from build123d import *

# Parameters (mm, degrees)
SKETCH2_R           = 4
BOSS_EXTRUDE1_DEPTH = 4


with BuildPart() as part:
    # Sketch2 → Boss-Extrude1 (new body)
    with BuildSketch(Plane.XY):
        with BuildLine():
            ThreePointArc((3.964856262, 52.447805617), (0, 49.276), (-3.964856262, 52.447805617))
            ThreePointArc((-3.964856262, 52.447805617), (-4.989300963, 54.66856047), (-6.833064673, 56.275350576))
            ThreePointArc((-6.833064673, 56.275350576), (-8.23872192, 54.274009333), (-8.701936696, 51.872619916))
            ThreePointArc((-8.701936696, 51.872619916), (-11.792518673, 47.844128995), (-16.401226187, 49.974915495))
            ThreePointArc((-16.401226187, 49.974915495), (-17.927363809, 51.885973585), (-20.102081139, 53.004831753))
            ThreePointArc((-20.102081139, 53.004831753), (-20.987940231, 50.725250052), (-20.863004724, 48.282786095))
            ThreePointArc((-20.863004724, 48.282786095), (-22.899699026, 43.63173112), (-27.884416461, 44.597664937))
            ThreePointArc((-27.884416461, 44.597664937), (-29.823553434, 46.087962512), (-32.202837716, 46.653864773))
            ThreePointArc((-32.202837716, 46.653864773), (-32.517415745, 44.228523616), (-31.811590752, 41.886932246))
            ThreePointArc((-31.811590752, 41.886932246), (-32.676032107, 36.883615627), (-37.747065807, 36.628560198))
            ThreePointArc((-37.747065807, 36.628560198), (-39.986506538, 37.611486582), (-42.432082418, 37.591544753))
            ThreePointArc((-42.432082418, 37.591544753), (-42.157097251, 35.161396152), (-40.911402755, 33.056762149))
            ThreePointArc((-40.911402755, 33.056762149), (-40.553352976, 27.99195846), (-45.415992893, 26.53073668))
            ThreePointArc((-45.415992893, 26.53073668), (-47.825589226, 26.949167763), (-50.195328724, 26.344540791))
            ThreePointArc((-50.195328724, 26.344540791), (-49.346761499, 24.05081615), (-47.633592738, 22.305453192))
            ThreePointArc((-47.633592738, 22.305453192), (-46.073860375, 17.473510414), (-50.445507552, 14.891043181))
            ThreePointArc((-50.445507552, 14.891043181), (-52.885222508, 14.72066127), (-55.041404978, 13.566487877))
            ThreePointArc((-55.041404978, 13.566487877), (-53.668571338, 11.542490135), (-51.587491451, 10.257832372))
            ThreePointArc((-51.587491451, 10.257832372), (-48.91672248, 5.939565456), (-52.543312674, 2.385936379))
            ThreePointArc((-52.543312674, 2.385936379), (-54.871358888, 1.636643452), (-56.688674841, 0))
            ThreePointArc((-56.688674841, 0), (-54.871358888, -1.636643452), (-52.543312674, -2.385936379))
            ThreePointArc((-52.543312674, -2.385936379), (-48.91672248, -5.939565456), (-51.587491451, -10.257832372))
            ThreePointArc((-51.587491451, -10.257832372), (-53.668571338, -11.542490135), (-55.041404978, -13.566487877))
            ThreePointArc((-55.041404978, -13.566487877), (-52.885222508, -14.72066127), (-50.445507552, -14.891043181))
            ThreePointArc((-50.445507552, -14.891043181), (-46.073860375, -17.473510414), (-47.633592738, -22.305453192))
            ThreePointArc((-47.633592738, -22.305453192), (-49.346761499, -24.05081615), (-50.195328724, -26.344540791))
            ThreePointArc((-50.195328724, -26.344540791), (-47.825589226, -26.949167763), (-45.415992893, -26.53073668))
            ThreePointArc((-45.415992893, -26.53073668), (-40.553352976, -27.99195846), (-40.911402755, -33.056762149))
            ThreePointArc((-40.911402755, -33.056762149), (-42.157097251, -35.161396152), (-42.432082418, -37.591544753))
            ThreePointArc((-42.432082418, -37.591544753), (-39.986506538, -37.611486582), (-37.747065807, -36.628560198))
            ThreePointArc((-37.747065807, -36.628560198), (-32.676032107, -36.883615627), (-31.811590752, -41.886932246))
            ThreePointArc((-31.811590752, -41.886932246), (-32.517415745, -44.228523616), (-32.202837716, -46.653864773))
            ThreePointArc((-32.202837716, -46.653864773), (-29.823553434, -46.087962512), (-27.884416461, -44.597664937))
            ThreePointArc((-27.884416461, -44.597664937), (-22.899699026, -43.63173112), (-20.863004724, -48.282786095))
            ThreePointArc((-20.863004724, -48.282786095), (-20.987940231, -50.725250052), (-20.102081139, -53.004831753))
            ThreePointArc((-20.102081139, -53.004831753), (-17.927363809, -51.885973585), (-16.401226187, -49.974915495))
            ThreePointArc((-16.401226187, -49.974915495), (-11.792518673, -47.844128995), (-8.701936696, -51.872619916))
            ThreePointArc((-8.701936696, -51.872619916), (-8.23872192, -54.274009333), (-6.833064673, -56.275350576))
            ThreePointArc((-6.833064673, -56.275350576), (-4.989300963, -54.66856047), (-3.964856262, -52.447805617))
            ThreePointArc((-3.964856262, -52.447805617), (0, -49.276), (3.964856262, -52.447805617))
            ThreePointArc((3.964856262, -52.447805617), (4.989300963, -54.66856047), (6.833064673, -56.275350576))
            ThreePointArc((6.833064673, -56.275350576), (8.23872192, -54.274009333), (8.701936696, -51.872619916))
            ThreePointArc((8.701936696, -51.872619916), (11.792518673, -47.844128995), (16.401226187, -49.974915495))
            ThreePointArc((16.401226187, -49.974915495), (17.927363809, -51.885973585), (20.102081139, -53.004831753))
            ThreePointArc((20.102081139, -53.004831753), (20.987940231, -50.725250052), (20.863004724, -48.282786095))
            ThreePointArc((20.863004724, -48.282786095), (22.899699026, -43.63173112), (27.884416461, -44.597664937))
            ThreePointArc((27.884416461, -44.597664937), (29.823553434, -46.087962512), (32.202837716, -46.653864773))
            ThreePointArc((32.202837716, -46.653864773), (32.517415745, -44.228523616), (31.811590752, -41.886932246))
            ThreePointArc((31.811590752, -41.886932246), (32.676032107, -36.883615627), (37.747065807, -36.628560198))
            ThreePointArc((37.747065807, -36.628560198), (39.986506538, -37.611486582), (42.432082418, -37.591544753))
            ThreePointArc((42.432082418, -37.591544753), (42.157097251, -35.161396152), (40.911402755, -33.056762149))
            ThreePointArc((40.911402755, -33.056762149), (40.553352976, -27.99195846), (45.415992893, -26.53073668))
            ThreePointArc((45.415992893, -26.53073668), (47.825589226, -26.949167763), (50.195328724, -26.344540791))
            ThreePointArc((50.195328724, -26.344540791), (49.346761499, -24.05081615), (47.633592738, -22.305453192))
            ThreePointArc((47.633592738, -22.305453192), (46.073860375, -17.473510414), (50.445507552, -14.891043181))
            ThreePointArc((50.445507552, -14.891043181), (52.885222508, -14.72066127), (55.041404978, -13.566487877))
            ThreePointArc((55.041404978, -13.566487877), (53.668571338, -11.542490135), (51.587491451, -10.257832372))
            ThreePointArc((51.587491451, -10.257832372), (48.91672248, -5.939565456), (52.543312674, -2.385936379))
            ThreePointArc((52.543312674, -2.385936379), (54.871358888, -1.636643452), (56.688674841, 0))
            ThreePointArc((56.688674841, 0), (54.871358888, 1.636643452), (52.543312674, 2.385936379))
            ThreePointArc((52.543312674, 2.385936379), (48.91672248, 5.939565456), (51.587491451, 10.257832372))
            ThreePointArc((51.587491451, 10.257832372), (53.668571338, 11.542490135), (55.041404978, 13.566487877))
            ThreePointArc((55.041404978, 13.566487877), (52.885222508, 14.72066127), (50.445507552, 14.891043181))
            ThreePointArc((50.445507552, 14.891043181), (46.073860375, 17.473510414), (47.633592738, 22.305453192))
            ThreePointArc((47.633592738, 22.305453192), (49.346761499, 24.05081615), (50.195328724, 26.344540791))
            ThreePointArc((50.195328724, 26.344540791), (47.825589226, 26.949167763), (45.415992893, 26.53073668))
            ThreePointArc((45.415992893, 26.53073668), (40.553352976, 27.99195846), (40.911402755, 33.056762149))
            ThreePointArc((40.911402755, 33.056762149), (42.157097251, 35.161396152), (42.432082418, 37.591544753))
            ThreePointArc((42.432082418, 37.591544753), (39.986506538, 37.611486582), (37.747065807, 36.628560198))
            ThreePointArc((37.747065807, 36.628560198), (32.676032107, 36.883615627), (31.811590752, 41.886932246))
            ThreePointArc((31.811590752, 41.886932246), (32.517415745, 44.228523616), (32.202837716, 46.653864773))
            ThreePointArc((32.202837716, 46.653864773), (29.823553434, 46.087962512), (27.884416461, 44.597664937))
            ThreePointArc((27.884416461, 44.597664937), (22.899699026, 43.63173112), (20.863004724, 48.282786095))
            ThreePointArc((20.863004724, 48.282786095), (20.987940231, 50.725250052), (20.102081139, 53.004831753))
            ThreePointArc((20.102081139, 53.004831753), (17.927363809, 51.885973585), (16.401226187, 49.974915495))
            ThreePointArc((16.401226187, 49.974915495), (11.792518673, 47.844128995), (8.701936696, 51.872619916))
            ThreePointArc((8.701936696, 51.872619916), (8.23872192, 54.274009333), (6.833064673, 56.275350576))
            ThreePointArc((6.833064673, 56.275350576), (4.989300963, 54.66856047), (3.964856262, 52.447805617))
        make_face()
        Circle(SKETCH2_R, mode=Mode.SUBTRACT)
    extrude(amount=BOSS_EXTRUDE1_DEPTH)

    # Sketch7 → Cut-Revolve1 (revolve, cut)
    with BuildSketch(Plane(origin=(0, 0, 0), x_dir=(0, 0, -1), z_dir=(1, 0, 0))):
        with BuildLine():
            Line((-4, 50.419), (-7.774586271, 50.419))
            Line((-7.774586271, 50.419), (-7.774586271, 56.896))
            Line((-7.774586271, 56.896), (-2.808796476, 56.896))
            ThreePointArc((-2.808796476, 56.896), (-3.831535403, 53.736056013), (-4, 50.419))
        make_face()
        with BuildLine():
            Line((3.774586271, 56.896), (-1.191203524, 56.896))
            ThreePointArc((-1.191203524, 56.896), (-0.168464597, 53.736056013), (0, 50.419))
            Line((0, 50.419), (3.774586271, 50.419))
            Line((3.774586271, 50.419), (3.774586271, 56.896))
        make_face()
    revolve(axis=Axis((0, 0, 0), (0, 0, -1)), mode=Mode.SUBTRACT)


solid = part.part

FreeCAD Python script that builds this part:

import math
import FreeCAD as App
import Part
import Sketcher
Q = App.Units.Quantity

doc = App.newDocument("Part")
body = doc.addObject("PartDesign::Body", "Body")

sketch1 = doc.addObject("Sketcher::SketchObject", "Sketch")
body.addObject(sketch1)
sketch1.AttachmentSupport = (doc.XY_Plane, [""])
sketch1.MapMode = "FlatFace"
sketch1.addGeometry([
    Part.ArcOfCircle(Part.Circle(App.Vector(0, 53.34, 0), App.Vector(0, 0, 1), 4.064), math.radians(-167.318217), math.radians(-12.681783)),
    Part.ArcOfCircle(Part.Circle(App.Vector(-9.664337, 51.165276, 0), App.Vector(0, 0, 1), 5.842), math.radians(12.681783), math.radians(61.011048)),
    Part.ArcOfCircle(Part.Circle(App.Vector(-2.861143, 51.991334, 0), App.Vector(0, 0, 1), 5.842), math.radians(132.835105), math.radians(181.164371)),
    Part.ArcOfCircle(Part.Circle(App.Vector(-12.765098, 51.790037, 0), App.Vector(0, 0, 1), 4.064), math.radians(-153.472063), math.radians(1.164371)),
    Part.ArcOfCircle(Part.Circle(App.Vector(-21.628161, 47.365679, 0), App.Vector(0, 0, 1), 5.842), math.radians(26.527936), math.radians(74.857202)),
    Part.ArcOfCircle(Part.Circle(App.Vector(-15.220344, 49.795844, 0), App.Vector(0, 0, 1), 5.842), math.radians(146.681259), math.radians(195.010525)),
    Part.ArcOfCircle(Part.Circle(App.Vector(-24.788334, 47.230224, 0), App.Vector(0, 0, 1), 4.064), math.radians(-139.62591), math.radians(15.010525)),
    Part.ArcOfCircle(Part.Circle(App.Vector(-32.335035, 40.813361, 0), App.Vector(0, 0, 1), 5.842), math.radians(40.37409), math.radians(88.703356)),
    Part.ArcOfCircle(Part.Circle(App.Vector(-26.694994, 44.7064, 0), App.Vector(0, 0, 1), 5.842), math.radians(160.527413), math.radians(208.856679)),
    Part.ArcOfCircle(Part.Circle(App.Vector(-35.370963, 39.925563, 0), App.Vector(0, 0, 1), 4.064), math.radians(-125.779756), math.radians(28.856679)),
    Part.ArcOfCircle(Part.Circle(App.Vector(-41.162714, 31.889118, 0), App.Vector(0, 0, 1), 5.842), math.radians(54.220244), math.radians(102.54951)),
    Part.ArcOfCircle(Part.Circle(App.Vector(-36.618228, 37.018783, 0), App.Vector(0, 0, 1), 5.842), math.radians(174.373567), math.radians(222.702833)),
    Part.ArcOfCircle(Part.Circle(App.Vector(-43.897959, 30.300574, 0), App.Vector(0, 0, 1), 4.064), math.radians(-111.933602), math.radians(42.702833)),
    Part.ArcOfCircle(Part.Circle(App.Vector(-47.598166, 21.111596, 0), App.Vector(0, 0, 1), 5.842), math.radians(68.066398), math.radians(116.395664)),
    Part.ArcOfCircle(Part.Circle(App.Vector(-44.413343, 27.179769, 0), App.Vector(0, 0, 1), 5.842), math.radians(-171.780279), math.radians(-123.451013)),
    Part.ArcOfCircle(Part.Circle(App.Vector(-49.873766, 18.914625, 0), App.Vector(0, 0, 1), 4.064), math.radians(-98.087448), math.radians(56.548987)),
    Part.ArcOfCircle(Part.Circle(App.Vector(-51.267385, 9.107145, 0), App.Vector(0, 0, 1), 5.842), math.radians(81.912552), math.radians(130.241818)),
    Part.ArcOfCircle(Part.Circle(App.Vector(-49.627317, 15.761166, 0), App.Vector(0, 0, 1), 5.842), math.radians(-157.934125), math.radians(-109.60486)),
    Part.ArcOfCircle(Part.Circle(App.Vector(-52.951091, 6.429427, 0), App.Vector(0, 0, 1), 4.064), math.radians(-84.241294), math.radians(70.39514)),
    Part.ArcOfCircle(Part.Circle(App.Vector(-51.957131, -3.426581, 0), App.Vector(0, 0, 1), 5.842), math.radians(95.758706), math.radians(144.087972)),
    Part.ArcOfCircle(Part.Circle(App.Vector(-51.957131, 3.426581, 0), App.Vector(0, 0, 1), 5.842), math.radians(-144.087972), math.radians(-95.758706)),
    Part.ArcOfCircle(Part.Circle(App.Vector(-52.951091, -6.429427, 0), App.Vector(0, 0, 1), 4.064), math.radians(-70.39514), math.radians(84.241294)),
    Part.ArcOfCircle(Part.Circle(App.Vector(-49.627317, -15.761166, 0), App.Vector(0, 0, 1), 5.842), math.radians(109.60486), math.radians(157.934125)),
    Part.ArcOfCircle(Part.Circle(App.Vector(-51.267385, -9.107145, 0), App.Vector(0, 0, 1), 5.842), math.radians(-130.241818), math.radians(-81.912552)),
    Part.ArcOfCircle(Part.Circle(App.Vector(-49.873766, -18.914625, 0), App.Vector(0, 0, 1), 4.064), math.radians(-56.548987), math.radians(98.087448)),
    Part.ArcOfCircle(Part.Circle(App.Vector(-44.413343, -27.179769, 0), App.Vector(0, 0, 1), 5.842), math.radians(123.451013), math.radians(171.780279)),
    Part.ArcOfCircle(Part.Circle(App.Vector(-47.598166, -21.111596, 0), App.Vector(0, 0, 1), 5.842), math.radians(-116.395664), math.radians(-68.066398)),
    Part.ArcOfCircle(Part.Circle(App.Vector(-43.897959, -30.300574, 0), App.Vector(0, 0, 1), 4.064), math.radians(-42.702833), math.radians(111.933602)),
    Part.ArcOfCircle(Part.Circle(App.Vector(-36.618228, -37.018783, 0), App.Vector(0, 0, 1), 5.842), math.radians(137.297167), math.radians(185.626433)),
    Part.ArcOfCircle(Part.Circle(App.Vector(-41.162714, -31.889118, 0), App.Vector(0, 0, 1), 5.842), math.radians(-102.54951), math.radians(-54.220244)),
    Part.ArcOfCircle(Part.Circle(App.Vector(-35.370963, -39.925563, 0), App.Vector(0, 0, 1), 4.064), math.radians(-28.856679), math.radians(125.779756)),
    Part.ArcOfCircle(Part.Circle(App.Vector(-26.694994, -44.7064, 0), App.Vector(0, 0, 1), 5.842), math.radians(151.143321), math.radians(199.472587)),
    Part.ArcOfCircle(Part.Circle(App.Vector(-32.335035, -40.813361, 0), App.Vector(0, 0, 1), 5.842), math.radians(-88.703356), math.radians(-40.37409)),
    Part.ArcOfCircle(Part.Circle(App.Vector(-24.788334, -47.230224, 0), App.Vector(0, 0, 1), 4.064), math.radians(-15.010525), math.radians(139.62591)),
    Part.ArcOfCircle(Part.Circle(App.Vector(-15.220344, -49.795844, 0), App.Vector(0, 0, 1), 5.842), math.radians(164.989475), math.radians(213.318741)),
    Part.ArcOfCircle(Part.Circle(App.Vector(-21.628161, -47.365679, 0), App.Vector(0, 0, 1), 5.842), math.radians(-74.857202), math.radians(-26.527936)),
    Part.ArcOfCircle(Part.Circle(App.Vector(-12.765098, -51.790037, 0), App.Vector(0, 0, 1), 4.064), math.radians(-1.164371), math.radians(153.472063)),
    Part.ArcOfCircle(Part.Circle(App.Vector(-2.861143, -51.991334, 0), App.Vector(0, 0, 1), 5.842), math.radians(178.835629), math.radians(227.164895)),
    Part.ArcOfCircle(Part.Circle(App.Vector(-9.664337, -51.165276, 0), App.Vector(0, 0, 1), 5.842), math.radians(-61.011048), math.radians(-12.681783)),
    Part.ArcOfCircle(Part.Circle(App.Vector(0, -53.34, 0), App.Vector(0, 0, 1), 4.064), math.radians(12.681783), math.radians(167.318217)),
    Part.ArcOfCircle(Part.Circle(App.Vector(9.664337, -51.165276, 0), App.Vector(0, 0, 1), 5.842), math.radians(-167.318217), math.radians(-118.988952)),
    Part.ArcOfCircle(Part.Circle(App.Vector(2.861143, -51.991334, 0), App.Vector(0, 0, 1), 5.842), math.radians(-47.164895), math.radians(1.164371)),
    Part.ArcOfCircle(Part.Circle(App.Vector(12.765098, -51.790037, 0), App.Vector(0, 0, 1), 4.064), math.radians(26.527937), math.radians(181.164371)),
    Part.ArcOfCircle(Part.Circle(App.Vector(21.628161, -47.365679, 0), App.Vector(0, 0, 1), 5.842), math.radians(-153.472064), math.radians(-105.142798)),
    Part.ArcOfCircle(Part.Circle(App.Vector(15.220344, -49.795844, 0), App.Vector(0, 0, 1), 5.842), math.radians(-33.318741), math.radians(15.010525)),
    Part.ArcOfCircle(Part.Circle(App.Vector(24.788334, -47.230224, 0), App.Vector(0, 0, 1), 4.064), math.radians(40.37409), math.radians(195.010525)),
    Part.ArcOfCircle(Part.Circle(App.Vector(32.335035, -40.813361, 0), App.Vector(0, 0, 1), 5.842), math.radians(-139.62591), math.radians(-91.296644)),
    Part.ArcOfCircle(Part.Circle(App.Vector(26.694994, -44.7064, 0), App.Vector(0, 0, 1), 5.842), math.radians(-19.472587), math.radians(28.856679)),
    Part.ArcOfCircle(Part.Circle(App.Vector(35.370963, -39.925563, 0), App.Vector(0, 0, 1), 4.064), math.radians(54.220244), math.radians(208.856679)),
    Part.ArcOfCircle(Part.Circle(App.Vector(41.162714, -31.889118, 0), App.Vector(0, 0, 1), 5.842), math.radians(-125.779756), math.radians(-77.45049)),
    Part.ArcOfCircle(Part.Circle(App.Vector(36.618228, -37.018783, 0), App.Vector(0, 0, 1), 5.842), math.radians(-5.626433), math.radians(42.702833)),
    Part.ArcOfCircle(Part.Circle(App.Vector(43.897959, -30.300574, 0), App.Vector(0, 0, 1), 4.064), math.radians(68.066398), math.radians(222.702833)),
    Part.ArcOfCircle(Part.Circle(App.Vector(47.598166, -21.111596, 0), App.Vector(0, 0, 1), 5.842), math.radians(-111.933602), math.radians(-63.604336)),
    Part.ArcOfCircle(Part.Circle(App.Vector(44.413343, -27.179769, 0), App.Vector(0, 0, 1), 5.842), math.radians(8.219721), math.radians(56.548987)),
    Part.ArcOfCircle(Part.Circle(App.Vector(49.873766, -18.914625, 0), App.Vector(0, 0, 1), 4.064), math.radians(81.912552), math.radians(236.548987)),
    Part.ArcOfCircle(Part.Circle(App.Vector(51.267385, -9.107145, 0), App.Vector(0, 0, 1), 5.842), math.radians(-98.087448), math.radians(-49.758182)),
    Part.ArcOfCircle(Part.Circle(App.Vector(49.627317, -15.761166, 0), App.Vector(0, 0, 1), 5.842), math.radians(22.065875), math.radians(70.39514)),
    Part.ArcOfCircle(Part.Circle(App.Vector(52.951091, -6.429427, 0), App.Vector(0, 0, 1), 4.064), math.radians(95.758706), math.radians(250.39514)),
    Part.ArcOfCircle(Part.Circle(App.Vector(51.957131, 3.426581, 0), App.Vector(0, 0, 1), 5.842), math.radians(-84.241294), math.radians(-35.912028)),
    Part.ArcOfCircle(Part.Circle(App.Vector(51.957131, -3.426581, 0), App.Vector(0, 0, 1), 5.842), math.radians(35.912028), math.radians(84.241294)),
    Part.ArcOfCircle(Part.Circle(App.Vector(52.951091, 6.429427, 0), App.Vector(0, 0, 1), 4.064), math.radians(109.60486), math.radians(264.241294)),
    Part.ArcOfCircle(Part.Circle(App.Vector(49.627317, 15.761166, 0), App.Vector(0, 0, 1), 5.842), math.radians(-70.39514), math.radians(-22.065875)),
    Part.ArcOfCircle(Part.Circle(App.Vector(51.267385, 9.107145, 0), App.Vector(0, 0, 1), 5.842), math.radians(49.758182), math.radians(98.087448)),
    Part.ArcOfCircle(Part.Circle(App.Vector(49.873766, 18.914625, 0), App.Vector(0, 0, 1), 4.064), math.radians(123.451013), math.radians(278.087448)),
    Part.ArcOfCircle(Part.Circle(App.Vector(44.413343, 27.179769, 0), App.Vector(0, 0, 1), 5.842), math.radians(-56.548987), math.radians(-8.219721)),
    Part.ArcOfCircle(Part.Circle(App.Vector(47.598166, 21.111596, 0), App.Vector(0, 0, 1), 5.842), math.radians(63.604336), math.radians(111.933602)),
    Part.ArcOfCircle(Part.Circle(App.Vector(43.897959, 30.300574, 0), App.Vector(0, 0, 1), 4.064), math.radians(137.297167), math.radians(291.933602)),
    Part.ArcOfCircle(Part.Circle(App.Vector(36.618228, 37.018783, 0), App.Vector(0, 0, 1), 5.842), math.radians(-42.702833), math.radians(5.626433)),
    Part.ArcOfCircle(Part.Circle(App.Vector(41.162714, 31.889118, 0), App.Vector(0, 0, 1), 5.842), math.radians(77.45049), math.radians(125.779756)),
    Part.ArcOfCircle(Part.Circle(App.Vector(35.370963, 39.925563, 0), App.Vector(0, 0, 1), 4.064), math.radians(151.143321), math.radians(305.779756)),
    Part.ArcOfCircle(Part.Circle(App.Vector(26.694994, 44.7064, 0), App.Vector(0, 0, 1), 5.842), math.radians(-28.856679), math.radians(19.472587)),
    Part.ArcOfCircle(Part.Circle(App.Vector(32.335035, 40.813361, 0), App.Vector(0, 0, 1), 5.842), math.radians(91.296644), math.radians(139.62591)),
    Part.ArcOfCircle(Part.Circle(App.Vector(24.788334, 47.230224, 0), App.Vector(0, 0, 1), 4.064), math.radians(164.989475), math.radians(319.62591)),
    Part.ArcOfCircle(Part.Circle(App.Vector(15.220344, 49.795844, 0), App.Vector(0, 0, 1), 5.842), math.radians(-15.010525), math.radians(33.318741)),
    Part.ArcOfCircle(Part.Circle(App.Vector(21.628161, 47.365679, 0), App.Vector(0, 0, 1), 5.842), math.radians(105.142798), math.radians(153.472064)),
    Part.ArcOfCircle(Part.Circle(App.Vector(12.765098, 51.790037, 0), App.Vector(0, 0, 1), 4.064), math.radians(178.835629), math.radians(333.472063)),
    Part.ArcOfCircle(Part.Circle(App.Vector(2.861143, 51.991334, 0), App.Vector(0, 0, 1), 5.842), math.radians(-1.164371), math.radians(47.164895)),
    Part.ArcOfCircle(Part.Circle(App.Vector(9.664337, 51.165276, 0), App.Vector(0, 0, 1), 5.842), math.radians(118.988952), math.radians(167.318217)),
    Part.Circle(App.Vector(0, 0, 0), App.Vector(0, 0, 1), 4),
], False)
sketch1.addConstraint([
    Sketcher.Constraint("Tangent", 0, 1, 1, 1),
    Sketcher.Constraint("Coincident", 1, 2, 2, 1),
    Sketcher.Constraint("Tangent", 2, 2, 3, 2),
    Sketcher.Constraint("Tangent", 3, 1, 4, 1),
    Sketcher.Constraint("Coincident", 4, 2, 5, 1),
    Sketcher.Constraint("Tangent", 5, 2, 6, 2),
    Sketcher.Constraint("Tangent", 6, 1, 7, 1),
    Sketcher.Constraint("Coincident", 7, 2, 8, 1),
    Sketcher.Constraint("Tangent", 8, 2, 9, 2),
    Sketcher.Constraint("Tangent", 9, 1, 10, 1),
    Sketcher.Constraint("Coincident", 10, 2, 11, 1),
    Sketcher.Constraint("Tangent", 11, 2, 12, 2),
    Sketcher.Constraint("Tangent", 12, 1, 13, 1),
    Sketcher.Constraint("Coincident", 13, 2, 14, 1),
    Sketcher.Constraint("Tangent", 14, 2, 15, 2),
    Sketcher.Constraint("Tangent", 15, 1, 16, 1),
    Sketcher.Constraint("Coincident", 16, 2, 17, 1),
    Sketcher.Constraint("Tangent", 17, 2, 18, 2),
    Sketcher.Constraint("Tangent", 18, 1, 19, 1),
    Sketcher.Constraint("Coincident", 19, 2, 20, 1),
    Sketcher.Constraint("Tangent", 20, 2, 21, 2),
    Sketcher.Constraint("Tangent", 21, 1, 22, 1),
    Sketcher.Constraint("Coincident", 22, 2, 23, 1),
    Sketcher.Constraint("Tangent", 23, 2, 24, 2),
    Sketcher.Constraint("Tangent", 24, 1, 25, 1),
    Sketcher.Constraint("Coincident", 25, 2, 26, 1),
    Sketcher.Constraint("Tangent", 26, 2, 27, 2),
    Sketcher.Constraint("Tangent", 27, 1, 28, 1),
    Sketcher.Constraint("Coincident", 28, 2, 29, 1),
    Sketcher.Constraint("Tangent", 29, 2, 30, 2),
    Sketcher.Constraint("Tangent", 30, 1, 31, 1),
    Sketcher.Constraint("Coincident", 31, 2, 32, 1),
    Sketcher.Constraint("Tangent", 32, 2, 33, 2),
    Sketcher.Constraint("Tangent", 33, 1, 34, 1),
    Sketcher.Constraint("Coincident", 34, 2, 35, 1),
    Sketcher.Constraint("Tangent", 35, 2, 36, 2),
    Sketcher.Constraint("Tangent", 36, 1, 37, 1),
    Sketcher.Constraint("Coincident", 37, 2, 38, 1),
    Sketcher.Constraint("Tangent", 38, 2, 39, 2),
    Sketcher.Constraint("Tangent", 39, 1, 40, 1),
    Sketcher.Constraint("Coincident", 40, 2, 41, 1),
    Sketcher.Constraint("Tangent", 41, 2, 42, 2),
    Sketcher.Constraint("Tangent", 42, 1, 43, 1),
    Sketcher.Constraint("Coincident", 43, 2, 44, 1),
    Sketcher.Constraint("Tangent", 44, 2, 45, 2),
    Sketcher.Constraint("Tangent", 45, 1, 46, 1),
    Sketcher.Constraint("Coincident", 46, 2, 47, 1),
    Sketcher.Constraint("Tangent", 47, 2, 48, 2),
    Sketcher.Constraint("Tangent", 48, 1, 49, 1),
    Sketcher.Constraint("Coincident", 49, 2, 50, 1),
    Sketcher.Constraint("Tangent", 50, 2, 51, 2),
    Sketcher.Constraint("Tangent", 51, 1, 52, 1),
    Sketcher.Constraint("Coincident", 52, 2, 53, 1),
    Sketcher.Constraint("Tangent", 53, 2, 54, 2),
    Sketcher.Constraint("Tangent", 54, 1, 55, 1),
    Sketcher.Constraint("Coincident", 55, 2, 56, 1),
    Sketcher.Constraint("Tangent", 56, 2, 57, 2),
    Sketcher.Constraint("Tangent", 57, 1, 58, 1),
    Sketcher.Constraint("Coincident", 58, 2, 59, 1),
    Sketcher.Constraint("Tangent", 59, 2, 60, 2),
    Sketcher.Constraint("Tangent", 60, 1, 61, 1),
    Sketcher.Constraint("Coincident", 61, 2, 62, 1),
    Sketcher.Constraint("Tangent", 62, 2, 63, 2),
    Sketcher.Constraint("Tangent", 63, 1, 64, 1),
    Sketcher.Constraint("Coincident", 64, 2, 65, 1),
    Sketcher.Constraint("Tangent", 65, 2, 66, 2),
    Sketcher.Constraint("Tangent", 66, 1, 67, 1),
    Sketcher.Constraint("Coincident", 67, 2, 68, 1),
    Sketcher.Constraint("Tangent", 68, 2, 69, 2),
    Sketcher.Constraint("Tangent", 69, 1, 70, 1),
    Sketcher.Constraint("Coincident", 70, 2, 71, 1),
    Sketcher.Constraint("Tangent", 71, 2, 72, 2),
    Sketcher.Constraint("Tangent", 72, 1, 73, 1),
    Sketcher.Constraint("Coincident", 73, 2, 74, 1),
    Sketcher.Constraint("Tangent", 74, 2, 75, 2),
    Sketcher.Constraint("Tangent", 75, 1, 76, 1),
    Sketcher.Constraint("Coincident", 76, 2, 77, 1),
    Sketcher.Constraint("Tangent", 77, 2, 0, 2),
    Sketcher.Constraint("Coincident", 78, 3, -1, 1),
    Sketcher.Constraint("Equal", 1, 2),
    Sketcher.Constraint("Equal", 0, 3),
    Sketcher.Constraint("Equal", 2, 4),
    Sketcher.Constraint("Equal", 4, 5),
    Sketcher.Constraint("Equal", 3, 6),
    Sketcher.Constraint("Equal", 5, 7),
    Sketcher.Constraint("Equal", 7, 8),
    Sketcher.Constraint("Equal", 6, 9),
    Sketcher.Constraint("Equal", 8, 10),
    Sketcher.Constraint("Equal", 10, 11),
    Sketcher.Constraint("Equal", 9, 12),
    Sketcher.Constraint("Equal", 11, 13),
    Sketcher.Constraint("Equal", 13, 14),
    Sketcher.Constraint("Equal", 12, 15),
    Sketcher.Constraint("Equal", 14, 16),
    Sketcher.Constraint("Equal", 16, 17),
    Sketcher.Constraint("Equal", 15, 18),
    Sketcher.Constraint("Equal", 17, 19),
    Sketcher.Constraint("Equal", 19, 20),
    Sketcher.Constraint("Equal", 18, 21),
    Sketcher.Constraint("Equal", 20, 22),
    Sketcher.Constraint("Equal", 22, 23),
    Sketcher.Constraint("Equal", 21, 24),
    Sketcher.Constraint("Equal", 23, 25),
    Sketcher.Constraint("Equal", 25, 26),
    Sketcher.Constraint("Equal", 24, 27),
    Sketcher.Constraint("Equal", 26, 28),
    Sketcher.Constraint("Equal", 28, 29),
    Sketcher.Constraint("Equal", 27, 30),
    Sketcher.Constraint("Equal", 29, 31),
    Sketcher.Constraint("Equal", 31, 32),
    Sketcher.Constraint("Equal", 30, 33),
    Sketcher.Constraint("Equal", 32, 34),
    Sketcher.Constraint("Equal", 34, 35),
    Sketcher.Constraint("Equal", 33, 36),
    Sketcher.Constraint("Equal", 35, 37),
    Sketcher.Constraint("Equal", 37, 38),
    Sketcher.Constraint("Equal", 36, 39),
    Sketcher.Constraint("Equal", 38, 40),
    Sketcher.Constraint("Equal", 40, 41),
    Sketcher.Constraint("Equal", 39, 42),
    Sketcher.Constraint("Equal", 41, 43),
    Sketcher.Constraint("Equal", 43, 44),
    Sketcher.Constraint("Equal", 42, 45),
    Sketcher.Constraint("Equal", 44, 46),
    Sketcher.Constraint("Equal", 46, 47),
    Sketcher.Constraint("Equal", 45, 48),
    Sketcher.Constraint("Equal", 47, 49),
    Sketcher.Constraint("Equal", 49, 50),
    Sketcher.Constraint("Equal", 48, 51),
    Sketcher.Constraint("Equal", 50, 52),
    Sketcher.Constraint("Equal", 52, 53),
    Sketcher.Constraint("Equal", 51, 54),
    Sketcher.Constraint("Equal", 53, 55),
    Sketcher.Constraint("Equal", 55, 56),
    Sketcher.Constraint("Equal", 54, 57),
    Sketcher.Constraint("Equal", 56, 58),
    Sketcher.Constraint("Equal", 58, 59),
    Sketcher.Constraint("Equal", 57, 60),
    Sketcher.Constraint("Equal", 59, 61),
    Sketcher.Constraint("Equal", 61, 62),
    Sketcher.Constraint("Equal", 60, 63),
    Sketcher.Constraint("Equal", 62, 64),
    Sketcher.Constraint("Equal", 64, 65),
    Sketcher.Constraint("Equal", 63, 66),
    Sketcher.Constraint("Equal", 65, 67),
    Sketcher.Constraint("Equal", 67, 68),
    Sketcher.Constraint("Equal", 66, 69),
    Sketcher.Constraint("Equal", 68, 70),
    Sketcher.Constraint("Equal", 70, 71),
    Sketcher.Constraint("Equal", 69, 72),
    Sketcher.Constraint("Equal", 71, 73),
    Sketcher.Constraint("Equal", 73, 74),
    Sketcher.Constraint("Equal", 72, 75),
    Sketcher.Constraint("Equal", 74, 76),
    Sketcher.Constraint("Equal", 76, 77),
    Sketcher.Constraint("Symmetric", 0, 3, 39, 3, -1, 1),
    Sketcher.Constraint("Symmetric", 2, 3, 41, 3, -1, 1),
    Sketcher.Constraint("Symmetric", 4, 3, 43, 3, -1, 1),
    Sketcher.Constraint("Symmetric", 5, 3, 44, 3, -1, 1),
    Sketcher.Constraint("Symmetric", 7, 3, 46, 3, -1, 1),
    Sketcher.Constraint("Symmetric", 8, 3, 47, 3, -1, 1),
    Sketcher.Constraint("Symmetric", 10, 3, 49, 3, -1, 1),
    Sketcher.Constraint("Symmetric", 11, 3, 50, 3, -1, 1),
    Sketcher.Constraint("Symmetric", 13, 3, 52, 3, -1, 1),
    Sketcher.Constraint("Symmetric", 14, 3, 53, 3, -1, 1),
    Sketcher.Constraint("Symmetric", 16, 3, 55, 3, -1, 1),
    Sketcher.Constraint("Symmetric", 17, 3, 56, 3, -1, 1),
    Sketcher.Constraint("Symmetric", 19, 3, 58, 3, -1, 1),
    Sketcher.Constraint("Symmetric", 20, 3, 59, 3, -1, 1),
    Sketcher.Constraint("Symmetric", 22, 3, 61, 3, -1, 1),
    Sketcher.Constraint("Symmetric", 23, 3, 62, 3, -1, 1),
    Sketcher.Constraint("Symmetric", 25, 3, 64, 3, -1, 1),
    Sketcher.Constraint("Symmetric", 26, 3, 65, 3, -1, 1),
    Sketcher.Constraint("Symmetric", 28, 3, 67, 3, -1, 1),
    Sketcher.Constraint("Symmetric", 29, 3, 68, 3, -1, 1),
    Sketcher.Constraint("Symmetric", 31, 3, 70, 3, -1, 1),
    Sketcher.Constraint("Symmetric", 32, 3, 71, 3, -1, 1),
    Sketcher.Constraint("Symmetric", 34, 3, 73, 3, -1, 1),
    Sketcher.Constraint("Symmetric", 35, 3, 74, 3, -1, 1),
    Sketcher.Constraint("Symmetric", 37, 3, 76, 3, -1, 1),
    Sketcher.Constraint("Symmetric", 38, 3, 40, 3, -2),
    Sketcher.Constraint("Symmetric", 37, 3, 41, 3, -2),
    Sketcher.Constraint("Symmetric", 35, 3, 43, 3, -2),
    Sketcher.Constraint("Symmetric", 34, 3, 44, 3, -2),
    Sketcher.Constraint("Symmetric", 32, 3, 46, 3, -2),
    Sketcher.Constraint("Symmetric", 31, 3, 47, 3, -2),
    Sketcher.Constraint("Symmetric", 29, 3, 49, 3, -2),
    Sketcher.Constraint("Symmetric", 28, 3, 50, 3, -2),
    Sketcher.Constraint("Symmetric", 26, 3, 52, 3, -2),
    Sketcher.Constraint("Symmetric", 25, 3, 53, 3, -2),
    Sketcher.Constraint("Symmetric", 23, 3, 55, 3, -2),
    Sketcher.Constraint("Symmetric", 22, 3, 56, 3, -2),
    Sketcher.Constraint("Symmetric", 20, 3, 58, 3, -2),
    Sketcher.Constraint("Horizontal", 1, 3, 77, 3),
    Sketcher.Constraint("Vertical", 1, 3, 38, 3),
    Sketcher.Constraint("Radius", 0, Q("0.16 in")),
    Sketcher.Constraint("Radius", 1, Q("0.23 in")),
    Sketcher.Constraint("DistanceY", -1, 1, 0, 3, Q("2.1 in")),
    Sketcher.Constraint("Diameter", 78, 8.0),
    Sketcher.Constraint("DistanceY", -1, 1, 8, 3, 44.7064),
    Sketcher.Constraint("DistanceX", 4, 3, -1, 1, 21.628161),
    Sketcher.Constraint("DistanceY", -1, 1, 4, 3, 47.365679),
    Sketcher.Constraint("DistanceY", -1, 1, 7, 3, 40.813361),
    Sketcher.Constraint("DistanceY", -1, 1, 10, 3, 31.889118),
    Sketcher.Constraint("DistanceX", 12, 3, -1, 1, 43.897959),
    Sketcher.Constraint("DistanceY", -1, 1, 14, 3, 27.179769),
    Sketcher.Constraint("DistanceX", 18, 3, -1, 1, 52.951091),
    Sketcher.Constraint("DistanceX", 19, 3, -1, 1, 51.957131),
    Sketcher.Constraint("DistanceY", 19, 3, -1, 1, 3.426581),
    Sketcher.Constraint("DistanceY", -1, 1, 1, 2, 56.275351),
    Sketcher.Constraint("DistanceY", -1, 1, 2, 2, 51.87262),
    Sketcher.Constraint("DistanceX", 4, 2, -1, 1, 20.102081),
    Sketcher.Constraint("DistanceX", 8, 2, -1, 1, 31.811591),
    Sketcher.Constraint("DistanceY", -1, 1, 9, 1, 36.62856),
    Sketcher.Constraint("DistanceX", 13, 2, -1, 1, 50.195329),
    Sketcher.Constraint("DistanceY", -1, 1, 13, 2, 26.344541),
    Sketcher.Constraint("DistanceX", 17, 2, -1, 1, 51.587491),
    Sketcher.Constraint("DistanceX", 1, 3, -1, 1, 9.664337),
    Sketcher.Constraint("DistanceX", 5, 3, -1, 1, 15.220344),
    Sketcher.Constraint("DistanceX", 6, 3, -1, 1, 24.788334),
    Sketcher.Constraint("DistanceX", 11, 3, -1, 1, 36.618228),
    Sketcher.Constraint("DistanceY", -1, 1, 11, 3, 37.018783),
    Sketcher.Constraint("DistanceX", 15, 3, -1, 1, 49.873766),
    Sketcher.Constraint("DistanceX", 16, 3, -1, 1, 51.267385),
])
pad1 = doc.addObject("PartDesign::Pad", "Pad")
body.addObject(pad1)
pad1.Profile = sketch1
pad1.Length = 4

sketch2 = doc.addObject("Sketcher::SketchObject", "Sketch001")
body.addObject(sketch2)
sketch2.AttachmentSupport = (doc.YZ_Plane, [""])
sketch2.MapMode = "FlatFace"
sketch2.addGeometry([
    Part.LineSegment(App.Vector(50.419, 7.774586, 0), App.Vector(50.419, 4, 0)),
    Part.ArcOfCircle(Part.Circle(App.Vector(51.438889, -8.658982, 0), App.Vector(0, 0, 1), 12.7), math.radians(64.551874), math.radians(94.606169)),
    Part.LineSegment(App.Vector(56.896, 2.808796, 0), App.Vector(56.896, 7.774586, 0)),
    Part.LineSegment(App.Vector(56.896, 7.774586, 0), App.Vector(50.419, 7.774586, 0)),
    Part.LineSegment(App.Vector(56.896, -3.774586, 0), App.Vector(56.896, 1.191204, 0)),
    Part.ArcOfCircle(Part.Circle(App.Vector(51.438889, 12.658982, 0), App.Vector(0, 0, 1), 12.7), math.radians(-94.606169), math.radians(-64.551874)),
    Part.LineSegment(App.Vector(50.419, 0, 0), App.Vector(50.419, -3.774586, 0)),
    Part.LineSegment(App.Vector(50.419, -3.774586, 0), App.Vector(56.896, -3.774586, 0)),
], False)
sketch2.addConstraint([
    Sketcher.Constraint("Coincident", 0, 2, 1, 2),
    Sketcher.Constraint("Coincident", 1, 1, 2, 1),
    Sketcher.Constraint("Coincident", 2, 2, 3, 1),
    Sketcher.Constraint("Coincident", 3, 2, 0, 1),
    Sketcher.Constraint("Coincident", 4, 2, 5, 2),
    Sketcher.Constraint("Coincident", 5, 1, 6, 1),
    Sketcher.Constraint("Coincident", 6, 2, 7, 1),
    Sketcher.Constraint("Coincident", 7, 2, 4, 1),
    Sketcher.Constraint("Vertical", 0),
    Sketcher.Constraint("Vertical", 2),
    Sketcher.Constraint("Horizontal", 3),
    Sketcher.Constraint("Vertical", 4),
    Sketcher.Constraint("Vertical", 6),
    Sketcher.Constraint("Horizontal", 7),
    Sketcher.Constraint("Equal", 1, 5),
    Sketcher.Constraint("PointOnObject", 5, 1, -1),
    Sketcher.Constraint("Vertical", 1, 3, 5, 3),
    Sketcher.Constraint("Vertical", 2, 2, 4, 2),
    Sketcher.Constraint("Vertical", 3, 2, 5, 1),
    Sketcher.Constraint("Equal", 2, 4),
    Sketcher.Constraint("Radius", 1, Q("0.5 in")),
    Sketcher.Constraint("DistanceX", 3, 2, 3, 1, Q("0.255 in")),
    Sketcher.Constraint("DistanceX", -1, 1, 1, 1, Q("2.24 in")),
    Sketcher.Constraint("DistanceY", 2, 1, 2, 2, 4.96579),
    Sketcher.Constraint("DistanceY", -1, 1, 0, 2, 4.0),
    Sketcher.Constraint("DistanceY", 0, 2, 0, 1, 3.774586),
])
groove = doc.addObject("PartDesign::Groove", "Groove")
body.addObject(groove)
groove.Profile = sketch2
groove.ReferenceAxis = (sketch2, ["V_Axis"])
groove.Angle = 360

doc.recompute()
